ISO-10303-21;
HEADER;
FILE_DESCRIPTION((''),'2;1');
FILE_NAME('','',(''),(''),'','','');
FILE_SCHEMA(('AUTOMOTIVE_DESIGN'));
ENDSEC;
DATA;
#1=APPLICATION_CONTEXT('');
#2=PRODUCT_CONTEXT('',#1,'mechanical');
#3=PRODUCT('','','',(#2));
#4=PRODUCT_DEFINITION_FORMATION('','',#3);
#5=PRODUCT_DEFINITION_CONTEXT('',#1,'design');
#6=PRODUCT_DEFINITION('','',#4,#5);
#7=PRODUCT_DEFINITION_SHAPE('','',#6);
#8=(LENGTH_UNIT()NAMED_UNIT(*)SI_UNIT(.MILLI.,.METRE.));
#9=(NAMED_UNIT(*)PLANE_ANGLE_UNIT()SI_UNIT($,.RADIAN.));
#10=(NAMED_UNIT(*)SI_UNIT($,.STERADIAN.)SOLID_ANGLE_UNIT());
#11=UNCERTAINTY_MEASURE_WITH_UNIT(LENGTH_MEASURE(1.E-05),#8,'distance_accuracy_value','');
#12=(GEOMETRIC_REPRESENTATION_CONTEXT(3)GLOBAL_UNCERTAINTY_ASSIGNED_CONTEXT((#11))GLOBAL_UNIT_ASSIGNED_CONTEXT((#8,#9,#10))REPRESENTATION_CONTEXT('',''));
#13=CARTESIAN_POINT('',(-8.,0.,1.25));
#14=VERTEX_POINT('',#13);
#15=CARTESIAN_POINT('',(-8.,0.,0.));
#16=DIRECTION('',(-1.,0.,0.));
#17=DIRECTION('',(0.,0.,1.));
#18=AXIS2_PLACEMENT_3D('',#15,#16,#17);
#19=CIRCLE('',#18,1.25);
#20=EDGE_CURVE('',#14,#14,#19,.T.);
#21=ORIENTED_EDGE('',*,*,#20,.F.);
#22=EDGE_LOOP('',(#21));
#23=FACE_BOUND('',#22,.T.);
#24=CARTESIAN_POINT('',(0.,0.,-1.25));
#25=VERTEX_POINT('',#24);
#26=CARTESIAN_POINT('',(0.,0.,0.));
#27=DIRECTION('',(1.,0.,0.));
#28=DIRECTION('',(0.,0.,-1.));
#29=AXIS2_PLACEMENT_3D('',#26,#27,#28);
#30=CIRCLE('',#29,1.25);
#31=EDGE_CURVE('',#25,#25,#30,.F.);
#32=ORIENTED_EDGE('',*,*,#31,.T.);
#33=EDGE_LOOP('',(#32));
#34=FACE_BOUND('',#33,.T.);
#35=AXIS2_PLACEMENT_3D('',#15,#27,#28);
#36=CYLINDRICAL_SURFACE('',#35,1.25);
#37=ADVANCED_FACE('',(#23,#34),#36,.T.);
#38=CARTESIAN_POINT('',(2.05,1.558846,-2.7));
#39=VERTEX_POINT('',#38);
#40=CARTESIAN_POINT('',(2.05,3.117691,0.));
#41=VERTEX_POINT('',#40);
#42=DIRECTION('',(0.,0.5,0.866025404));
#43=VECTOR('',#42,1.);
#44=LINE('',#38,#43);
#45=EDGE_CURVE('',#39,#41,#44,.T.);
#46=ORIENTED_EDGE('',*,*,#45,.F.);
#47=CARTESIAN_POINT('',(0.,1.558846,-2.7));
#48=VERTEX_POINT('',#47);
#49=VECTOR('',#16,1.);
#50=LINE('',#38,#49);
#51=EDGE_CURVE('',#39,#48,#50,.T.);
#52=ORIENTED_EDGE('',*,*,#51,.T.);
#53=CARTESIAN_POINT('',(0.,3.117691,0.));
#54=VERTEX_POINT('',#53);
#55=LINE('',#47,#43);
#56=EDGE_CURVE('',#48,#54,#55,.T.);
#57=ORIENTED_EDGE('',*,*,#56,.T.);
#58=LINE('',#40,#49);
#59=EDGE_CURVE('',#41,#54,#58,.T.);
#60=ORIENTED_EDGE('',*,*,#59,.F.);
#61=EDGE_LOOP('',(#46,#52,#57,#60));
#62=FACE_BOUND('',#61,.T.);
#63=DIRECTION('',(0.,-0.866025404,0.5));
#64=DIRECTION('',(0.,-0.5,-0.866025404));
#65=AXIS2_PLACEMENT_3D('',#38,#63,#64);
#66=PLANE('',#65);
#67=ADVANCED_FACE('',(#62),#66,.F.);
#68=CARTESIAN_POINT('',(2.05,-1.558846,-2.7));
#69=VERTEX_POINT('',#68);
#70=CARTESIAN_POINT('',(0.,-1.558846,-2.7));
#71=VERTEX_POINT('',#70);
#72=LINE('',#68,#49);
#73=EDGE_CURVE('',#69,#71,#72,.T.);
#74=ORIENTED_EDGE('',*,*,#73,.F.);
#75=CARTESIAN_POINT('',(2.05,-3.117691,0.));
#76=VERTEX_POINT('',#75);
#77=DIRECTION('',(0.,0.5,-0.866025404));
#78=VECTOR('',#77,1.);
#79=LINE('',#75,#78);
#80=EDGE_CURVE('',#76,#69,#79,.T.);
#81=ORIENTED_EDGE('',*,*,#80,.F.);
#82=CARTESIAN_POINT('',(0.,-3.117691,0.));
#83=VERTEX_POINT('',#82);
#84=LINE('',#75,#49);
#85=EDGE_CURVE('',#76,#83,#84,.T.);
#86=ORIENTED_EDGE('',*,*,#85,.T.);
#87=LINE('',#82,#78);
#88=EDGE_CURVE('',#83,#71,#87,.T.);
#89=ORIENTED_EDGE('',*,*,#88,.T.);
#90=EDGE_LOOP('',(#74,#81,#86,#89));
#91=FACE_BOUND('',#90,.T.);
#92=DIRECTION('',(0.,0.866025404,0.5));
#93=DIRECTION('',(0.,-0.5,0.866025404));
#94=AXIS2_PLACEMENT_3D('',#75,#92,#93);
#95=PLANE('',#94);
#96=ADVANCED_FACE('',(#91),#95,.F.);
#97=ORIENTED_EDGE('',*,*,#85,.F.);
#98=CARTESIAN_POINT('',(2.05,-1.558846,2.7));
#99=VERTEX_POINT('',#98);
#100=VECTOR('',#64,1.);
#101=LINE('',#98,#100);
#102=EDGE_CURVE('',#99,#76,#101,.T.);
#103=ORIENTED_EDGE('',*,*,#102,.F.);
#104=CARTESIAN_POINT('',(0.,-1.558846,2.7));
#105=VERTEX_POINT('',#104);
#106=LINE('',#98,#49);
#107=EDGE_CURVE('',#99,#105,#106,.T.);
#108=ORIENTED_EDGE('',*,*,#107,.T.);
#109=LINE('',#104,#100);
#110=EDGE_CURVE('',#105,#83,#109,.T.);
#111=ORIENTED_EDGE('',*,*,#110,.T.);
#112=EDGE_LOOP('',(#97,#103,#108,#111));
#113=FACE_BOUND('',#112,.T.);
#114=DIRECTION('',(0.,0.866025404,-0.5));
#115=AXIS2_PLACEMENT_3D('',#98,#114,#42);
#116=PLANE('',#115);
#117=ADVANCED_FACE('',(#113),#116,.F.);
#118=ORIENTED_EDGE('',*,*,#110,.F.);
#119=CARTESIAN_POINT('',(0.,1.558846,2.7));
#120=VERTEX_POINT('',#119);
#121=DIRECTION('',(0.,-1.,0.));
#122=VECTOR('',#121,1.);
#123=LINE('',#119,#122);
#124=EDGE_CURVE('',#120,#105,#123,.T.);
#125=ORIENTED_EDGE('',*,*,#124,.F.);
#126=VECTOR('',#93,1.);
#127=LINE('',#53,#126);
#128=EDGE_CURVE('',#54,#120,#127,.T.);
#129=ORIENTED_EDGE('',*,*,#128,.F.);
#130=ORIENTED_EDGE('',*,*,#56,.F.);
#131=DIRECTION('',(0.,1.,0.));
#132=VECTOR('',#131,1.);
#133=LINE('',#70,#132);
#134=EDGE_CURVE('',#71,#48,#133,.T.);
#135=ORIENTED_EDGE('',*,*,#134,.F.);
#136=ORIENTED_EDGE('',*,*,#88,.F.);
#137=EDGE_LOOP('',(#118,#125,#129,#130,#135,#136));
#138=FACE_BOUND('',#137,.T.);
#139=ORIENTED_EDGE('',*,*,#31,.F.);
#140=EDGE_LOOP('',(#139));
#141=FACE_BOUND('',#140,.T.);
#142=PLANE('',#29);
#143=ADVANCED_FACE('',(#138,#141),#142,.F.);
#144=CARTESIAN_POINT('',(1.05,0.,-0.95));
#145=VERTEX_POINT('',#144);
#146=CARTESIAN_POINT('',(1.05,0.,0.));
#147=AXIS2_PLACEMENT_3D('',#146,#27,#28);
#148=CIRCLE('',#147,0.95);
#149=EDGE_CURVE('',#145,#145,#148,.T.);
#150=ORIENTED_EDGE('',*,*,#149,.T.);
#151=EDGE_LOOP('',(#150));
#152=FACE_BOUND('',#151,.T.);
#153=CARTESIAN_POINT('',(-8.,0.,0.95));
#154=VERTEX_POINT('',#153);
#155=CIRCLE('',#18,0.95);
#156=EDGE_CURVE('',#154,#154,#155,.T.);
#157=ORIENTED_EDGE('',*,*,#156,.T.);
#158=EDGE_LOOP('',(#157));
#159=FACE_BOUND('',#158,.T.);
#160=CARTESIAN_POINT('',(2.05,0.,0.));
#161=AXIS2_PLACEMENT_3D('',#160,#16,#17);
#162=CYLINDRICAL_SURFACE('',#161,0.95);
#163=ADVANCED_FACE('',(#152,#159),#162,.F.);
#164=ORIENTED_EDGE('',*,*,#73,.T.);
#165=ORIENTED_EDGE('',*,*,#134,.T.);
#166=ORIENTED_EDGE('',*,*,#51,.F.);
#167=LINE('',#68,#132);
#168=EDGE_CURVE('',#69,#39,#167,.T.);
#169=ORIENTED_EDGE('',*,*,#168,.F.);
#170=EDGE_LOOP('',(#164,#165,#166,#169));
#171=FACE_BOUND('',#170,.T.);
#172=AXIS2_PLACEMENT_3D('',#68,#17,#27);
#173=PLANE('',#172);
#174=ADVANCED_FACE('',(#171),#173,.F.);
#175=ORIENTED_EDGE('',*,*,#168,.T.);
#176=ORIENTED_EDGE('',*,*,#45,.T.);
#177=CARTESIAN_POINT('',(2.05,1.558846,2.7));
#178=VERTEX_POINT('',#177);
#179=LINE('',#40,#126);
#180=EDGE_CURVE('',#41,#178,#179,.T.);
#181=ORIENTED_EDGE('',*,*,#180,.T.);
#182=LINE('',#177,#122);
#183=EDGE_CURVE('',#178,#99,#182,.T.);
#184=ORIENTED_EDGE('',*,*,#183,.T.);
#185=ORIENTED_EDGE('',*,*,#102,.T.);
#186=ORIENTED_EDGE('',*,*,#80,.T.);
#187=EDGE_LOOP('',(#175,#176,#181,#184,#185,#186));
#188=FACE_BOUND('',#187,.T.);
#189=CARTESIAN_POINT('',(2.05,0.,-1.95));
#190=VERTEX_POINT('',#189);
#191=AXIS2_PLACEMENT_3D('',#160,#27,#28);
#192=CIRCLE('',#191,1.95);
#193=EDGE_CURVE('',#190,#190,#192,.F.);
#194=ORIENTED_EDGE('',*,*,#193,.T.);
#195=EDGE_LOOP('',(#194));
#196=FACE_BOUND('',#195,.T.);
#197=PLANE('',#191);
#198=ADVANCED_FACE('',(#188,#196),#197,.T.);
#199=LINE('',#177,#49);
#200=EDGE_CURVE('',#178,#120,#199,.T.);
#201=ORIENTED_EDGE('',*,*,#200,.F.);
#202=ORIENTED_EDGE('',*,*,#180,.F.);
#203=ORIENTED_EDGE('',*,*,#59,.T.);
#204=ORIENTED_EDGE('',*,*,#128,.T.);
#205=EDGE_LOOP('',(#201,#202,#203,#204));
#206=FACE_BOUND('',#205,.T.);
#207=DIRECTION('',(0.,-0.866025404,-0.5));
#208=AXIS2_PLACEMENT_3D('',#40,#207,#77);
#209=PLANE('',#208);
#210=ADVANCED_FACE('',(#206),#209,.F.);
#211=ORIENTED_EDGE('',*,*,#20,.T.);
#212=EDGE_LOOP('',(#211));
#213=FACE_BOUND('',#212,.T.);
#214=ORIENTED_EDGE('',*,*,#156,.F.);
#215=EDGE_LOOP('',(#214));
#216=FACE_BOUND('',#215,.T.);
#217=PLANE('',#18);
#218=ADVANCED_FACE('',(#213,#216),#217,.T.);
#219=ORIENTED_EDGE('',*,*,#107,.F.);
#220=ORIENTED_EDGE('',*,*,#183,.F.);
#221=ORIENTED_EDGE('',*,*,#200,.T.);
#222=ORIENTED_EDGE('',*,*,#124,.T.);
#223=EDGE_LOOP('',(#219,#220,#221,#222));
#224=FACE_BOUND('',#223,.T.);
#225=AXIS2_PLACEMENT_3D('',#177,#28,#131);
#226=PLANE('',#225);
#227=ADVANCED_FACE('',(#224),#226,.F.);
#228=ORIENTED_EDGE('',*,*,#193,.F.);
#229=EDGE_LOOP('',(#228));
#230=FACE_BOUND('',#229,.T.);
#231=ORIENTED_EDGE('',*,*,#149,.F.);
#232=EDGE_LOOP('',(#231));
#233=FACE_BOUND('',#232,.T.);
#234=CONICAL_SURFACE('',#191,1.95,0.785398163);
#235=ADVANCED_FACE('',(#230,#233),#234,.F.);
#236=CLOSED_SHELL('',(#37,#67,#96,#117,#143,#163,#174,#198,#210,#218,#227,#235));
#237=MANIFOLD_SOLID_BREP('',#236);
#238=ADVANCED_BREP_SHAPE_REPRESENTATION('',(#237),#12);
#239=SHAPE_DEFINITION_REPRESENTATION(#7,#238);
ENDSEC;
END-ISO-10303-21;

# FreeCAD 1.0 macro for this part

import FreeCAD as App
import Part
import Sketcher
from FreeCAD import Vector
Q = App.Units.Quantity


def edges_at(feature, points):
    """Names of the edges that pass closest to the given points."""
    edges = feature.Shape.Edges
    near = lambda p: min(range(len(edges)), key=lambda i: edges[i].distToShape(Part.Vertex(*p))[0])
    return sorted({f"Edge{near(p) + 1}" for p in points})

doc = App.newDocument("Part")
body = doc.addObject("PartDesign::Body", "Body")

# Sketch on YZ plane
sketch1 = body.newObject("Sketcher::SketchObject", "Sketch")
sketch1.AttachmentSupport = (doc.getObject("YZ_Plane"), [""])
sketch1.MapMode = "FlatFace"
sketch1.addGeometry([
    Part.LineSegment(Vector(-3.117691, 0, 0), Vector(-1.558846, -2.7, 0)),  # 0
    Part.LineSegment(Vector(-1.558846, -2.7, 0), Vector(1.558846, -2.7, 0)),  # 1
    Part.LineSegment(Vector(1.558846, -2.7, 0), Vector(3.117691, 0, 0)),  # 2
    Part.LineSegment(Vector(3.117691, 0, 0), Vector(1.558846, 2.7, 0)),  # 3
    Part.LineSegment(Vector(1.558846, 2.7, 0), Vector(-1.558846, 2.7, 0)),  # 4
    Part.LineSegment(Vector(-1.558846, 2.7, 0), Vector(-3.117691, 0, 0)),  # 5
], False)
sketch1.addConstraint([
    Sketcher.Constraint("Coincident", 0, 2, 1, 1),
    Sketcher.Constraint("Coincident", 1, 2, 2, 1),
    Sketcher.Constraint("Coincident", 2, 2, 3, 1),
    Sketcher.Constraint("Coincident", 3, 2, 4, 1),
    Sketcher.Constraint("Coincident", 4, 2, 5, 1),
    Sketcher.Constraint("Coincident", 5, 2, 0, 1),
    Sketcher.Constraint("Horizontal", 1),
    Sketcher.Constraint("Horizontal", 4),
    Sketcher.Constraint("Symmetric", 0, 2, 3, 2, -1, 1),
    Sketcher.Constraint("Symmetric", 2, 2, 5, 2, -1, 1),
    Sketcher.Constraint("PointOnObject", 2, 2, -1),
    Sketcher.Constraint("Parallel", 2, 5),
    Sketcher.Constraint("Vertical", 1, 2, 3, 2),
    Sketcher.Constraint("Angle", 0, Q("-60 deg")),
    Sketcher.Constraint("DistanceY", 0, 2, -1, 1, Q("2.7 mm")),
    Sketcher.Constraint("DistanceX", 1, 1, 1, 2, Q("3.117691 mm")),
])
pad1 = body.newObject("PartDesign::Pad", "Pad")
pad1.Profile = sketch1
pad1.Length = 2.05

# Sketch on YZ plane
sketch2 = body.newObject("Sketcher::SketchObject", "Sketch001")
sketch2.AttachmentSupport = (doc.getObject("YZ_Plane"), [""])
sketch2.MapMode = "FlatFace"
sketch2.addGeometry(Part.Circle(Vector(0, 0, 0), Vector(0, 0, 1), 1.25), False)
sketch2.addConstraint([
    Sketcher.Constraint("Coincident", 0, 3, -1, 1),
    Sketcher.Constraint("Diameter", 0, Q("2.5 mm")),
])
pad2 = body.newObject("PartDesign::Pad", "Pad001")
pad2.Profile = sketch2
pad2.Length = 8
pad2.Reversed = True

# Sketch on YZ plane
sketch3 = body.newObject("Sketcher::SketchObject", "Sketch002")
sketch3.AttachmentSupport = (doc.getObject("YZ_Plane"), [""])
sketch3.MapMode = "FlatFace"
sketch3.AttachmentOffset = App.Placement(Vector(0, 0, -8), App.Rotation())
sketch3.addGeometry(Part.Circle(Vector(0, 0, 0), Vector(0, 0, 1), 0.95), False)
sketch3.addConstraint([
    Sketcher.Constraint("Coincident", 0, 3, -1, 1),
    Sketcher.Constraint("Diameter", 0, Q("1.9 mm")),
])
pocket1 = body.newObject("PartDesign::Pocket", "Pocket")
pocket1.Profile = sketch3
pocket1.Type = "ThroughAll"
pocket1.Reversed = True
doc.recompute()

chamfer = body.newObject("PartDesign::Chamfer", "Chamfer")
chamfer.Base = (pocket1, edges_at(pocket1, [(2.05, 0, -0.95)]))
chamfer.Size = 1

doc.recompute()
